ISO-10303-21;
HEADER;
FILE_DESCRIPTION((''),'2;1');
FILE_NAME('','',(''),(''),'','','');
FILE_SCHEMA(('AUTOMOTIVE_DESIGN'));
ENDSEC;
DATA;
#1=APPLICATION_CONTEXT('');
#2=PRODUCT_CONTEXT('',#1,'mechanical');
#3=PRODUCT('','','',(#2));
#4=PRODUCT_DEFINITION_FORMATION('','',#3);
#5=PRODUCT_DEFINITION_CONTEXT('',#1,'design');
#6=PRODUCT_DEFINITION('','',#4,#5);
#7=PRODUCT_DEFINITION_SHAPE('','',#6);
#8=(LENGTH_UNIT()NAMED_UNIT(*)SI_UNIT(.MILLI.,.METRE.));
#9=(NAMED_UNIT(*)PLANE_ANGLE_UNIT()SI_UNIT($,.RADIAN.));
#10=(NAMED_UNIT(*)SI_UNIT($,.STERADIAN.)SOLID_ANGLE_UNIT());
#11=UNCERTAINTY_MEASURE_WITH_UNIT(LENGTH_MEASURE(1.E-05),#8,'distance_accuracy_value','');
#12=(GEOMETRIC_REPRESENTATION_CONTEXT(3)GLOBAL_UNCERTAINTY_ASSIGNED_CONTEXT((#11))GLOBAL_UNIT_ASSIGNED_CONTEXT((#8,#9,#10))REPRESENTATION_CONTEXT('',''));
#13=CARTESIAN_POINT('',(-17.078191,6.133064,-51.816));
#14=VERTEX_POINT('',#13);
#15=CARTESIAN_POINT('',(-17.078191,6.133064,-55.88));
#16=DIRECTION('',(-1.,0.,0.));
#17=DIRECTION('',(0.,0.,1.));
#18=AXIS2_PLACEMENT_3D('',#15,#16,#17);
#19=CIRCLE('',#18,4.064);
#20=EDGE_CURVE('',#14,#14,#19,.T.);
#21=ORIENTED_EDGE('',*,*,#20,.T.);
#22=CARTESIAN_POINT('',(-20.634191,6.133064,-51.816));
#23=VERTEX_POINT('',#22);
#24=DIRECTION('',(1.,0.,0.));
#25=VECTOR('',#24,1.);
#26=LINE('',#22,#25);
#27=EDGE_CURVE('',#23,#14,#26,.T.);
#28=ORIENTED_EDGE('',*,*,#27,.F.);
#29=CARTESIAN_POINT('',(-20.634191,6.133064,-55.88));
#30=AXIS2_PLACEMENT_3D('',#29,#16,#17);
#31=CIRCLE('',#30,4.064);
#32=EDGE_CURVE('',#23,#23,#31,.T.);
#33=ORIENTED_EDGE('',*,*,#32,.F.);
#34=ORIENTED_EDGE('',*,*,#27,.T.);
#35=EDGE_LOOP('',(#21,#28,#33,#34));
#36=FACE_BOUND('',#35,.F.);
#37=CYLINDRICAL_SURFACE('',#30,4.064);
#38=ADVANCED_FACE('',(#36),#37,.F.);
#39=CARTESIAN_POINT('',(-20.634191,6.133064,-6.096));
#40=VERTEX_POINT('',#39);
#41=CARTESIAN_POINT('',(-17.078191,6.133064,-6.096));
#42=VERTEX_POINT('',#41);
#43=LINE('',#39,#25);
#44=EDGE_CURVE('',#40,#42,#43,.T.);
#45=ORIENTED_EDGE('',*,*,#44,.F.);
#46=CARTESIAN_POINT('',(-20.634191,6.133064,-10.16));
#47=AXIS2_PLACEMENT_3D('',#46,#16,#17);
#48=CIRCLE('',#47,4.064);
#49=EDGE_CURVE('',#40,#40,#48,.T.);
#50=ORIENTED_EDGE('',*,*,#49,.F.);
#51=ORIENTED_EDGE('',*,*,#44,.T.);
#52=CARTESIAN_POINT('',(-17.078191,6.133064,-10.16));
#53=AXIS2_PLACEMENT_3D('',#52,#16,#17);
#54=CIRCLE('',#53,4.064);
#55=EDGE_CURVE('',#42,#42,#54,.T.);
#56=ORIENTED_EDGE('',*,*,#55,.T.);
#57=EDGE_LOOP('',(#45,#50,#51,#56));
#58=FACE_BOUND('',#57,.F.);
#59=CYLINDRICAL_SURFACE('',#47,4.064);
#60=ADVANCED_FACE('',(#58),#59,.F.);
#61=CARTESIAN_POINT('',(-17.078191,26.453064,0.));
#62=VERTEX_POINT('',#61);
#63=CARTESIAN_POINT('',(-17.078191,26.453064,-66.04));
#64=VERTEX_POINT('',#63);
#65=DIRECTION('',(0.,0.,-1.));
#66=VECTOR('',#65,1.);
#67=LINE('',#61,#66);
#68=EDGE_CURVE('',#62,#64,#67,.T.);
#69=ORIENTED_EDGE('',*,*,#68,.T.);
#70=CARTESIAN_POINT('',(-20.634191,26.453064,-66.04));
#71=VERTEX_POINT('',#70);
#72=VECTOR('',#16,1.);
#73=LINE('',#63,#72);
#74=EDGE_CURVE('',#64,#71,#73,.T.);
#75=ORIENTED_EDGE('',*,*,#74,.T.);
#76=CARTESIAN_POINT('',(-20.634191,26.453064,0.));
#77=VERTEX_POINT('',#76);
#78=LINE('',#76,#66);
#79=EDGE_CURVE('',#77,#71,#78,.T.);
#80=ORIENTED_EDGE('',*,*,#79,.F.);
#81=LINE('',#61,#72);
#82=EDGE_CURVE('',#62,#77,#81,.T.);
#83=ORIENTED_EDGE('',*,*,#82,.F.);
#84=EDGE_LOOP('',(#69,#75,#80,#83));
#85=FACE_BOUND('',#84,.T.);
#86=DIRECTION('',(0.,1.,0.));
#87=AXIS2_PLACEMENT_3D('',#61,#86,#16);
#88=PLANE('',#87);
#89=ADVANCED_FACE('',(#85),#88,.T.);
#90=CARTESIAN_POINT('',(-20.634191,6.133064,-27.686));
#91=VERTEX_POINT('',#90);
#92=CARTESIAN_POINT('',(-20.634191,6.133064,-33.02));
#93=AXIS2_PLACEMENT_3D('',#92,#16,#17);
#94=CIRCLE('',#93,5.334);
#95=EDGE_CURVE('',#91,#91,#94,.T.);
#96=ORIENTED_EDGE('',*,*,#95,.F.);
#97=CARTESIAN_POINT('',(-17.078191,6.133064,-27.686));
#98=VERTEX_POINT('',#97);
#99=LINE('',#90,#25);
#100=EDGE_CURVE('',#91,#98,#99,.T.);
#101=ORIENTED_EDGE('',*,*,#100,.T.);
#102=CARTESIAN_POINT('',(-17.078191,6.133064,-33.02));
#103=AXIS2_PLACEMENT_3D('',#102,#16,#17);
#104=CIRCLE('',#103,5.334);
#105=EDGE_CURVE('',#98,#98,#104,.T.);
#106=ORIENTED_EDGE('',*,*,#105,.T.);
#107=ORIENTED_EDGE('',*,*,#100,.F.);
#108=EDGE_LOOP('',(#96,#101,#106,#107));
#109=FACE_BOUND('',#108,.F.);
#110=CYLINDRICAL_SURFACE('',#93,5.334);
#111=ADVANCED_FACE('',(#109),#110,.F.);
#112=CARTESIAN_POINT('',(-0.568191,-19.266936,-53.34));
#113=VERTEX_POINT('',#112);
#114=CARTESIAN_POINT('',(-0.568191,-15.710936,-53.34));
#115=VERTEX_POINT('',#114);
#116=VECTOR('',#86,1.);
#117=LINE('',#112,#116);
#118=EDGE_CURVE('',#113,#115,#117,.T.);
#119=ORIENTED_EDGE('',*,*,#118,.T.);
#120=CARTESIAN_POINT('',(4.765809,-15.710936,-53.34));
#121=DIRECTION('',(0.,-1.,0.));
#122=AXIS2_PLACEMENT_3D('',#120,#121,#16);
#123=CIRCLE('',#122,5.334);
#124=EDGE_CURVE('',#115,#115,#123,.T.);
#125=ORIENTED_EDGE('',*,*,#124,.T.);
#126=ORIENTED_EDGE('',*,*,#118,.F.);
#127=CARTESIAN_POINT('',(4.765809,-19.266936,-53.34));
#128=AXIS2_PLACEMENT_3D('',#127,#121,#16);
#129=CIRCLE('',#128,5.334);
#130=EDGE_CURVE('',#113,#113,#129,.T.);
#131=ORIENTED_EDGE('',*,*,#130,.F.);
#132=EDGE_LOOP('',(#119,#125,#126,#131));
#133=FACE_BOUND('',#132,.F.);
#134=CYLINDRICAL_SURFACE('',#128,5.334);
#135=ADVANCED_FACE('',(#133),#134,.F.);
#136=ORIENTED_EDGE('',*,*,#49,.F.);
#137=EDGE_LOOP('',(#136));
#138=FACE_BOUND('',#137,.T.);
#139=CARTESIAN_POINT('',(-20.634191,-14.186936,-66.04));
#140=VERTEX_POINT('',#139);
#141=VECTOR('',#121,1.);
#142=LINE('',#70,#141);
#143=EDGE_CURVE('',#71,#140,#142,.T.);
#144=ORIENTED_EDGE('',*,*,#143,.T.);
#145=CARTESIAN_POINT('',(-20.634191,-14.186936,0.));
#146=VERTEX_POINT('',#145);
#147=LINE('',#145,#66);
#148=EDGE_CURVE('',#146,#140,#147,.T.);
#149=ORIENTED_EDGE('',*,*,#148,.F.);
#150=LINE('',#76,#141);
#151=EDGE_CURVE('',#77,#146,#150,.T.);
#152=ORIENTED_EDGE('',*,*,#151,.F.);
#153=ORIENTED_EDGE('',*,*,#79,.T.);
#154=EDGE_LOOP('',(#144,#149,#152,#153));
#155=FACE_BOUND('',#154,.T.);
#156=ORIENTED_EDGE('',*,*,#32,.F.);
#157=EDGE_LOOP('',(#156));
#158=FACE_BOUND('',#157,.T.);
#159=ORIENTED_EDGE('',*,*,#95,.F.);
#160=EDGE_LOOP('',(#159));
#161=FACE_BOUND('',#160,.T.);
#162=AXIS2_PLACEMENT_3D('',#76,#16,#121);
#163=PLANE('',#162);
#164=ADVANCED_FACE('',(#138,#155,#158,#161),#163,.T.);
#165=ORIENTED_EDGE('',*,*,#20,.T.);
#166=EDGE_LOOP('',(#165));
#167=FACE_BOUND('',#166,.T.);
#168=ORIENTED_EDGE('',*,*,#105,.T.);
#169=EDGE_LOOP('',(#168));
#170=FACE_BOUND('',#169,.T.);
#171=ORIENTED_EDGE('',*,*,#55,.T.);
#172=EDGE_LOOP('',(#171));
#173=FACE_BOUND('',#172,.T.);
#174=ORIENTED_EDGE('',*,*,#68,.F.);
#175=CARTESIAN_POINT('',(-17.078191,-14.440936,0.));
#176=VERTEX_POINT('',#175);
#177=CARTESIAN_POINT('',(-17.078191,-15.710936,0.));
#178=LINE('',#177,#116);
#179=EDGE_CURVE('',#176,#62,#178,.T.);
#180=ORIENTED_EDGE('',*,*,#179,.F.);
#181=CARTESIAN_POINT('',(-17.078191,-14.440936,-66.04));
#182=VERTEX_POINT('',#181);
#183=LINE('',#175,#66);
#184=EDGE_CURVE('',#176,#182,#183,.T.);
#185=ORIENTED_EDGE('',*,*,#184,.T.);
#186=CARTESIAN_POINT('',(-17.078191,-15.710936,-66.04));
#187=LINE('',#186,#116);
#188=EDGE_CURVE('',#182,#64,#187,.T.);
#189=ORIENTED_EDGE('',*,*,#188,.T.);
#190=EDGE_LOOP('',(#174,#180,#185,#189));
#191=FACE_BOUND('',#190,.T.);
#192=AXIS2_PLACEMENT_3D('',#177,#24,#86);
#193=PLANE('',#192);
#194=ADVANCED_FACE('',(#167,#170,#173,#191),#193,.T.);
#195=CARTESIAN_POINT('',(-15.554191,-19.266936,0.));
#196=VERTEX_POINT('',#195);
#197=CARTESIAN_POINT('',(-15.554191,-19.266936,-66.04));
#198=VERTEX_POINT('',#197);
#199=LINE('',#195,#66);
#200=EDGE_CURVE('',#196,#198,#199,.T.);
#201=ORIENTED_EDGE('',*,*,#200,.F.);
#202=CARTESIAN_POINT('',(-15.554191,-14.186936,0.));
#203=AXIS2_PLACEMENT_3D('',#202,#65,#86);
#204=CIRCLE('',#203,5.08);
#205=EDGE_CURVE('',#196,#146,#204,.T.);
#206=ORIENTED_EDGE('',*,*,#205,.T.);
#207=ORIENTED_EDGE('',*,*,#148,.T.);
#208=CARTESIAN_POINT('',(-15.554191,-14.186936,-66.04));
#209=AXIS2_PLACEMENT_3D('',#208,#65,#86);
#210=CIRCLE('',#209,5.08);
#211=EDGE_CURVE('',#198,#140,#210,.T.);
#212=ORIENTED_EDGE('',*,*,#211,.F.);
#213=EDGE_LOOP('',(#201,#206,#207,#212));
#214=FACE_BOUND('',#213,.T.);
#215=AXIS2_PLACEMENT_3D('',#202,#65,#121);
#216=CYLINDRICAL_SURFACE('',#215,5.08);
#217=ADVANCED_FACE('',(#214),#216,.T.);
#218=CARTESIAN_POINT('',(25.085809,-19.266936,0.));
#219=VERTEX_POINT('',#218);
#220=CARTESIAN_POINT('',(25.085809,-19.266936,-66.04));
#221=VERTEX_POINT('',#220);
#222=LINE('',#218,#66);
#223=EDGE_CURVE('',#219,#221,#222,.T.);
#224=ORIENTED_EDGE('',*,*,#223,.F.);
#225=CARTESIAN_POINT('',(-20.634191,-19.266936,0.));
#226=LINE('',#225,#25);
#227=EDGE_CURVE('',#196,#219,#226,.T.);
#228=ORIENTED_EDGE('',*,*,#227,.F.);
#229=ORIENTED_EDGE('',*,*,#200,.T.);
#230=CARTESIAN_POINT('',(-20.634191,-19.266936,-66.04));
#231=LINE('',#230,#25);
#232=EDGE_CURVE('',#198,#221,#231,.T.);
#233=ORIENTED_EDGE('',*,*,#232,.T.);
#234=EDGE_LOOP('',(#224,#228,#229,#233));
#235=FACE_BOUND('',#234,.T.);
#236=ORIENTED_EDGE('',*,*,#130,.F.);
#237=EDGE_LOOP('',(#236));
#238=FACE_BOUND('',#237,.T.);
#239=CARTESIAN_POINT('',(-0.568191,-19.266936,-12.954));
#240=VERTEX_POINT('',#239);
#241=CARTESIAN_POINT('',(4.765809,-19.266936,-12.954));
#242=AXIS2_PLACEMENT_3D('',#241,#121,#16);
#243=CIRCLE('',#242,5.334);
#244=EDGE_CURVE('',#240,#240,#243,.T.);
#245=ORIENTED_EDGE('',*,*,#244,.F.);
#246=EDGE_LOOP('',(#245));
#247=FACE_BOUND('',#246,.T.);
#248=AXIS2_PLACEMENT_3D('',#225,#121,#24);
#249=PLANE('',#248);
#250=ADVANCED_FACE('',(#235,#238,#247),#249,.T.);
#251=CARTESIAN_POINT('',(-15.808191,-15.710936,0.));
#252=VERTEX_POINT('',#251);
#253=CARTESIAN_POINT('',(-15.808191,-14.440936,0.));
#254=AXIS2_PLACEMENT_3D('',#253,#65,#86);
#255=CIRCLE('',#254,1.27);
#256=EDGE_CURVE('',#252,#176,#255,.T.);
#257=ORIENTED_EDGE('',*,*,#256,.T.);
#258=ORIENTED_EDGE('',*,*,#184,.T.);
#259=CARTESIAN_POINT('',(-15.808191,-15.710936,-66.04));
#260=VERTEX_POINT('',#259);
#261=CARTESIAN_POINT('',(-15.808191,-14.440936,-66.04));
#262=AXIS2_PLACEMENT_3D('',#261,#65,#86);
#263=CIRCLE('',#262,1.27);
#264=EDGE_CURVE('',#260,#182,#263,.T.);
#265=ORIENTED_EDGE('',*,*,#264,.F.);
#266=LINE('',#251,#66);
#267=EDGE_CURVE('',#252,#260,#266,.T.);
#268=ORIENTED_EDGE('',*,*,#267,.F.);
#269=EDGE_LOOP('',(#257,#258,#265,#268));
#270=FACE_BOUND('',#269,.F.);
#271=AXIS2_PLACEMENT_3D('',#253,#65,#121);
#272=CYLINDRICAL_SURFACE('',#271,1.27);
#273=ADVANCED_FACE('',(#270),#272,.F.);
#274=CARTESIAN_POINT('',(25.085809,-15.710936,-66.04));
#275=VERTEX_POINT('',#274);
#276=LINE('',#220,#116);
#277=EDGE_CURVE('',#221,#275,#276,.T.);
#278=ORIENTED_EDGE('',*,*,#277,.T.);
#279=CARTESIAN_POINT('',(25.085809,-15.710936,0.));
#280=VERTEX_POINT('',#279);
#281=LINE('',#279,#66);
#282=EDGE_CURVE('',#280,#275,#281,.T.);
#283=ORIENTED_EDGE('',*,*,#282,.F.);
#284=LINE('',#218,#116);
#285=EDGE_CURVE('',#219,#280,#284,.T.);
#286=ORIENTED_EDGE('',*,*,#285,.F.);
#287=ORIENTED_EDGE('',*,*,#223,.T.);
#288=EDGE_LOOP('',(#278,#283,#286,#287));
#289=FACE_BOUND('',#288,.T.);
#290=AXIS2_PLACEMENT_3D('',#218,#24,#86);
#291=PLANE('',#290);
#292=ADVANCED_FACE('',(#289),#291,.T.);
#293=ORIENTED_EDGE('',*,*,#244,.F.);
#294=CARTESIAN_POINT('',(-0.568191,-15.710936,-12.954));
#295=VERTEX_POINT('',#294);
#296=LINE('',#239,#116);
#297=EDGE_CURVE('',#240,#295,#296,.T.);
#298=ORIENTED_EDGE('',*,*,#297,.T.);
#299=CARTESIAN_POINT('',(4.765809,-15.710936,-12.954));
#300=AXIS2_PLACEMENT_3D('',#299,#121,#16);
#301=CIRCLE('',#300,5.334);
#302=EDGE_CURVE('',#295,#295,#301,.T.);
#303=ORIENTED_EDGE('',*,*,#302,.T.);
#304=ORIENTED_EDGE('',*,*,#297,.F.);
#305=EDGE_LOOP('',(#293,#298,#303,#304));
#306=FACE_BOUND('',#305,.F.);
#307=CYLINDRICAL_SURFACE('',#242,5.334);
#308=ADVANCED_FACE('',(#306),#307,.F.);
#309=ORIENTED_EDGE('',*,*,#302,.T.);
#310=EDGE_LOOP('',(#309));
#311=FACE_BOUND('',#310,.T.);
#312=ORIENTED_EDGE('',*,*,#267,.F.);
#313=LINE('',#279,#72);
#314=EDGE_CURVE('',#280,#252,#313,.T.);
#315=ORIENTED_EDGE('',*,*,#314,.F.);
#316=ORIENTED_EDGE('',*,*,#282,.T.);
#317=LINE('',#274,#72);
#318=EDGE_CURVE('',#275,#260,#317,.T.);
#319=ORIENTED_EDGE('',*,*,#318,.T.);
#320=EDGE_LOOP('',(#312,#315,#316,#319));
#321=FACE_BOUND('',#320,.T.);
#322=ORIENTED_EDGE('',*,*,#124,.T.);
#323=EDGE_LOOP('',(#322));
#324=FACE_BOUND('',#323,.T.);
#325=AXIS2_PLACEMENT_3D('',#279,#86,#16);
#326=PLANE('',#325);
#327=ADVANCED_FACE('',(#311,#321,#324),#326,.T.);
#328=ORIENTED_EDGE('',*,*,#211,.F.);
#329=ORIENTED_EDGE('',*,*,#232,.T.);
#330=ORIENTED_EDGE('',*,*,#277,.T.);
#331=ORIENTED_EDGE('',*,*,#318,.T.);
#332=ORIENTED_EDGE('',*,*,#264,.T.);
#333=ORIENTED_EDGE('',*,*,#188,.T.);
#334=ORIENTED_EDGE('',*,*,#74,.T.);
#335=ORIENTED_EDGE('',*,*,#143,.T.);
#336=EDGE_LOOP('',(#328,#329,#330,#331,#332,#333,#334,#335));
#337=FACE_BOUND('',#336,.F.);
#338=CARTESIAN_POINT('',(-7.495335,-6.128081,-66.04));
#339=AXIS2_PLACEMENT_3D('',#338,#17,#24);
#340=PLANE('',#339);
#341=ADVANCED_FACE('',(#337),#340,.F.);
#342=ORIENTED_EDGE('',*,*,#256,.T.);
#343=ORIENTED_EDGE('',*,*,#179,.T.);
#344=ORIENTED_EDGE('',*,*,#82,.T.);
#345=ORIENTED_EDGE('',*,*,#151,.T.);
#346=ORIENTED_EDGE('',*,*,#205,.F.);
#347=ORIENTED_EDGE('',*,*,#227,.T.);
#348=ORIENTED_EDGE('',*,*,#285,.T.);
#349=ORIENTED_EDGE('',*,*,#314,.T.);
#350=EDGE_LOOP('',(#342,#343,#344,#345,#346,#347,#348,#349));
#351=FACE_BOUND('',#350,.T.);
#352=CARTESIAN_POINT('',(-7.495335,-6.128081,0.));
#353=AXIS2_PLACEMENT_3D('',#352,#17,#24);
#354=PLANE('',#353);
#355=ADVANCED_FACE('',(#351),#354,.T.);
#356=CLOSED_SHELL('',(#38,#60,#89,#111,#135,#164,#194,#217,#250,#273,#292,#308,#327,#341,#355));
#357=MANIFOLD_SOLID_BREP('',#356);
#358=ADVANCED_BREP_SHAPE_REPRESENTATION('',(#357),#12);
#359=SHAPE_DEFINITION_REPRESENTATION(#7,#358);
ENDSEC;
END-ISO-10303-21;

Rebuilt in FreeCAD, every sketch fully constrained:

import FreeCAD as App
import Part
import Sketcher
from FreeCAD import Vector
Q = App.Units.Quantity


def edges_at(feature, points):
    """Names of the edges that pass closest to the given points."""
    edges = feature.Shape.Edges
    near = lambda p: min(range(len(edges)), key=lambda i: edges[i].distToShape(Part.Vertex(*p))[0])
    return sorted({f"Edge{near(p) + 1}" for p in points})

doc = App.newDocument("Part")
body = doc.addObject("PartDesign::Body", "Body")

sketch1 = doc.addObject("Sketcher::SketchObject", "Sketch")
body.addObject(sketch1)
sketch1.AttachmentSupport = (doc.XY_Plane, [""])
sketch1.MapMode = "FlatFace"
sketch1.addGeometry([
    Part.LineSegment(Vector(-20.6, 26.5, 0), Vector(-20.6, -19.3, 0)),
    Part.LineSegment(Vector(-20.6, -19.3, 0), Vector(25.1, -19.3, 0)),
    Part.LineSegment(Vector(25.1, -19.3, 0), Vector(25.1, -15.7, 0)),
    Part.LineSegment(Vector(25.1, -15.7, 0), Vector(-17.1, -15.7, 0)),
    Part.LineSegment(Vector(-17.1, -15.7, 0), Vector(-17.1, 26.5, 0)),
    Part.LineSegment(Vector(-17.1, 26.5, 0), Vector(-20.6, 26.5, 0)),
], False)
sketch1.addConstraint([
    Sketcher.Constraint("Coincident", 0, 2, 1, 1),
    Sketcher.Constraint("Coincident", 1, 2, 2, 1),
    Sketcher.Constraint("Coincident", 2, 2, 3, 1),
    Sketcher.Constraint("Coincident", 3, 2, 4, 1),
    Sketcher.Constraint("Coincident", 4, 2, 5, 1),
    Sketcher.Constraint("Coincident", 5, 2, 0, 1),
    Sketcher.Constraint("Vertical", 0),
    Sketcher.Constraint("Horizontal", 1),
    Sketcher.Constraint("Vertical", 2),
    Sketcher.Constraint("Horizontal", 3),
    Sketcher.Constraint("Vertical", 4),
    Sketcher.Constraint("Horizontal", 5),
    Sketcher.Constraint("Equal", 1, 0),
    Sketcher.Constraint("Equal", 5, 2),
    Sketcher.Constraint("DistanceX", 1, 1, 1, 2, Q("1.8 in")),
    Sketcher.Constraint("DistanceX", 3, 2, 3, 1, Q("1.66 in")),
    Sketcher.Constraint("DistanceX", 0, 2, -1, 1, Q("20.634191 mm")),
    Sketcher.Constraint("DistanceY", 0, 2, -1, 1, Q("19.266936 mm")),
])
pad1 = doc.addObject("PartDesign::Pad", "Pad")
body.addObject(pad1)
pad1.Profile = sketch1
pad1.Length = Q("2.6 in")
pad1.Reversed = True
doc.recompute()

fillet = doc.addObject("PartDesign::Fillet", "Fillet")
body.addObject(fillet)
fillet.Base = (pad1, edges_at(pad1, [(-17.078, -15.711, -33.02)]))
fillet.Radius = Q("0.05 in")
doc.recompute()

fillet2 = doc.addObject("PartDesign::Fillet", "Fillet001")
body.addObject(fillet2)
fillet2.Base = (fillet, edges_at(fillet, [(-20.634, -19.267, -33.02)]))
fillet2.Radius = Q("0.2 in")

sketch2 = doc.addObject("Sketcher::SketchObject", "Sketch001")
body.addObject(sketch2)
sketch2.AttachmentSupport = (doc.YZ_Plane, [""])
sketch2.MapMode = "FlatFace"
sketch2.AttachmentOffset = App.Placement(Vector(0, 0, -20.634191), App.Rotation())
sketch2.addGeometry([
    Part.Circle(Vector(6.1, -33, 0), Vector(0, 0, 1), 5.3),
    Part.Circle(Vector(6.1, -55.9, 0), Vector(0, 0, 1), 4.1),
    Part.Circle(Vector(6.1, -10.2, 0), Vector(0, 0, 1), 4.1),
], False)
sketch2.addConstraint([
    Sketcher.Constraint("Equal", 1, 2),
    Sketcher.Constraint("Vertical", 0, 3, 1, 3),
    Sketcher.Constraint("Vertical", 1, 3, 2, 3),
    Sketcher.Constraint("Diameter", 0, Q("0.42 in")),
    Sketcher.Constraint("Diameter", 1, Q("0.32 in")),
    Sketcher.Constraint("DistanceY", 0, 3, -1, 1, Q("1.3 in")),
    Sketcher.Constraint("DistanceY", 1, 3, -1, 1, Q("2.2 in")),
    Sketcher.Constraint("DistanceY", 2, 3, -1, 1, Q("0.4 in")),
    Sketcher.Constraint("DistanceX", -1, 1, 0, 3, Q("6.133064 mm")),
])
pocket1 = doc.addObject("PartDesign::Pocket", "Pocket")
body.addObject(pocket1)
pocket1.Profile = sketch2
pocket1.Length = Q("2.6 in")
pocket1.Reversed = True

sketch3 = doc.addObject("Sketcher::SketchObject", "Sketch002")
body.addObject(sketch3)
sketch3.AttachmentSupport = (doc.XZ_Plane, [""])
sketch3.MapMode = "FlatFace"
sketch3.AttachmentOffset = App.Placement(Vector(0, 0, 19.266936), App.Rotation())
sketch3.addGeometry([
    Part.Circle(Vector(5, -13, 0), Vector(0, 0, 1), 5),
    Part.Circle(Vector(5, -53, 0), Vector(0, 0, 1), 5),
], False)
sketch3.addConstraint([
    Sketcher.Constraint("Equal", 0, 1),
    Sketcher.Constraint("Vertical", 0, 3, 1, 3),
    Sketcher.Constraint("Diameter", 0, Q("0.42 in")),
    Sketcher.Constraint("DistanceY", 1, 3, -1, 1, Q("2.1 in")),
    Sketcher.Constraint("DistanceY", 0, 3, -1, 1, Q("0.51 in")),
    Sketcher.Constraint("DistanceX", -1, 1, 0, 3, Q("4.765809 mm")),
])
pocket2 = doc.addObject("PartDesign::Pocket", "Pocket001")
body.addObject(pocket2)
pocket2.Profile = sketch3
pocket2.Length = Q("2.6 in")

doc.recompute()
